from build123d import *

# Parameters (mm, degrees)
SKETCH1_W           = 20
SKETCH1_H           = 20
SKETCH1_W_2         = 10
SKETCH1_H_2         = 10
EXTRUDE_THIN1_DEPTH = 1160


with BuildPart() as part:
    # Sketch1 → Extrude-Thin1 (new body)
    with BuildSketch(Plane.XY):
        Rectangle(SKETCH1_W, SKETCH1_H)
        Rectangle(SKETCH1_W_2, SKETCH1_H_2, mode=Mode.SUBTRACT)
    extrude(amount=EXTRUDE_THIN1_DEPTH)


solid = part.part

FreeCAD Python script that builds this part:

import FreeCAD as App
import Part
import Sketcher

V = App.Vector

doc = App.newDocument("Part")
params = doc.addObject("Spreadsheet::Sheet", "Params")
for row, (alias, value) in enumerate([
    ("sketch1_width", "20 mm"),
    ("sketch1_width2", "10 mm"),
    ("pad1_length", "1160 mm"),
], start=1):
    params.set(f"A{row}", alias)
    params.set(f"B{row}", "=" + value)
    params.setAlias(f"B{row}", alias)

body = doc.addObject("PartDesign::Body", "Body")

# Sketch on XY plane
sketch1 = body.newObject("Sketcher::SketchObject", "Sketch")
sketch1.AttachmentSupport = (doc.getObject("XY_Plane"), [""])
sketch1.MapMode = "FlatFace"
sketch1.addGeometry(Part.LineSegment(V(-10, 10, 0), V(-10, -10, 0)), False)
sketch1.addGeometry(Part.LineSegment(V(-10, -10, 0), V(10, -10, 0)), False)
sketch1.addGeometry(Part.LineSegment(V(10, -10, 0), V(10, 10, 0)), False)
sketch1.addGeometry(Part.LineSegment(V(10, 10, 0), V(-10, 10, 0)), False)
sketch1.addGeometry(Part.LineSegment(V(5, -5, 0), V(-5, -5, 0)), False)
sketch1.addGeometry(Part.LineSegment(V(-5, -5, 0), V(-5, 5, 0)), False)
sketch1.addGeometry(Part.LineSegment(V(-5, 5, 0), V(5, 5, 0)), False)
sketch1.addGeometry(Part.LineSegment(V(5, 5, 0), V(5, -5, 0)), False)
sketch1.addConstraint(Sketcher.Constraint("Coincident", 0, 2, 1, 1))
sketch1.addConstraint(Sketcher.Constraint("Coincident", 1, 2, 2, 1))
sketch1.addConstraint(Sketcher.Constraint("Coincident", 2, 2, 3, 1))
sketch1.addConstraint(Sketcher.Constraint("Coincident", 3, 2, 0, 1))
sketch1.addConstraint(Sketcher.Constraint("Coincident", 4, 2, 5, 1))
sketch1.addConstraint(Sketcher.Constraint("Coincident", 5, 2, 6, 1))
sketch1.addConstraint(Sketcher.Constraint("Coincident", 6, 2, 7, 1))
sketch1.addConstraint(Sketcher.Constraint("Coincident", 7, 2, 4, 1))
sketch1.addConstraint(Sketcher.Constraint("Vertical", 0))
sketch1.addConstraint(Sketcher.Constraint("Horizontal", 1))
sketch1.addConstraint(Sketcher.Constraint("Vertical", 2))
sketch1.addConstraint(Sketcher.Constraint("Horizontal", 3))
sketch1.addConstraint(Sketcher.Constraint("Horizontal", 4))
sketch1.addConstraint(Sketcher.Constraint("Vertical", 5))
sketch1.addConstraint(Sketcher.Constraint("Horizontal", 6))
sketch1.addConstraint(Sketcher.Constraint("Vertical", 7))
sketch1.addConstraint(Sketcher.Constraint("Symmetric", 0, 2, 2, 2, -1, 1))
sketch1.addConstraint(Sketcher.Constraint("Symmetric", 4, 2, 6, 2, -1, 1))
sketch1.addConstraint(Sketcher.Constraint("Equal", 3, 0))
sketch1.addConstraint(Sketcher.Constraint("Equal", 6, 5))
sketch1.addConstraint(Sketcher.Constraint("DistanceX", 1, 1, 1, 2, 20.0))
sketch1.addConstraint(Sketcher.Constraint("DistanceX", 4, 2, 4, 1, 10.0))
sketch1.setExpression("Constraints[20]", "Params.sketch1_width")
sketch1.setExpression("Constraints[21]", "Params.sketch1_width2")
pad1 = body.newObject("PartDesign::Pad", "Pad")
pad1.Profile = sketch1
pad1.setExpression("Length", "Params.pad1_length")

doc.recompute()
